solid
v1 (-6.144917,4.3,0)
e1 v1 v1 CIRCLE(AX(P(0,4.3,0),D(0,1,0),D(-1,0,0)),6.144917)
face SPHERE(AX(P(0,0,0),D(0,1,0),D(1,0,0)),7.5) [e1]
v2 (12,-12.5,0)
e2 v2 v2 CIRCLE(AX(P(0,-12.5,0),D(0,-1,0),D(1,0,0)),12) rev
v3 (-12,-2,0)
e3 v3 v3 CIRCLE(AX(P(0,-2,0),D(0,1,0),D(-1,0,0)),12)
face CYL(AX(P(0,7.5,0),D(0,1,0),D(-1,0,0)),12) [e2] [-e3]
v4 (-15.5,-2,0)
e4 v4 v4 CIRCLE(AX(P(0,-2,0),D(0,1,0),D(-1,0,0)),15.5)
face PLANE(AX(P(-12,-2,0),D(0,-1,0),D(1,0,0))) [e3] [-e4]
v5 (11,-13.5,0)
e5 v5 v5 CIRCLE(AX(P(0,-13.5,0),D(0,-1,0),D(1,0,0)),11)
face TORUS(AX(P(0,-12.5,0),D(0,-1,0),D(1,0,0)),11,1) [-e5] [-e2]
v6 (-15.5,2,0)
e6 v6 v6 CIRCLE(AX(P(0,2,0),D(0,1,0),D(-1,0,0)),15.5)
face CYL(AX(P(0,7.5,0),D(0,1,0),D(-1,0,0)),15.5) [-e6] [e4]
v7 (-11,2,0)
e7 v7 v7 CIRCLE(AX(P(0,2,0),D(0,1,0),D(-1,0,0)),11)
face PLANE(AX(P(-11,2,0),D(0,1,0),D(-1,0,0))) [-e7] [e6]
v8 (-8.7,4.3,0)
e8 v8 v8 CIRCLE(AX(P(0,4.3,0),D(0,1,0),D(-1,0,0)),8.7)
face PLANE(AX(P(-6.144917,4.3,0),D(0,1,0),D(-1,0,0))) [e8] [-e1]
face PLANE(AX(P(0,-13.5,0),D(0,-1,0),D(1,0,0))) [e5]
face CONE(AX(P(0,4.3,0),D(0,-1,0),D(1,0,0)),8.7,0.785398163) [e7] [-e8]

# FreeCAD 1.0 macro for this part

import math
import FreeCAD as App
import Part
import Sketcher

V = App.Vector
Q = App.Units.Quantity


def edges_at(feature, points):
    """Names of the edges that pass closest to the given points."""
    edges = feature.Shape.Edges
    near = lambda p: min(range(len(edges)), key=lambda i: edges[i].distToShape(Part.Vertex(*p))[0])
    return sorted({f"Edge{near(p) + 1}" for p in points})

doc = App.newDocument("Part")
body = doc.addObject("PartDesign::Body", "Body")

# Sketch on XY plane
sketch1 = body.newObject("Sketcher::SketchObject", "Sketch")
sketch1.AttachmentSupport = (doc.getObject("XY_Plane"), [""])
sketch1.MapMode = "FlatFace"
sketch1.addGeometry(Part.LineSegment(V(-15.5, -2, 0), V(-12, -2, 0)), False)
sketch1.addGeometry(Part.LineSegment(V(-12, -2, 0), V(-12, -13.5, 0)), False)
sketch1.addGeometry(Part.LineSegment(V(-12, -13.5, 0), V(0, -13.5, 0)), False)
sketch1.addGeometry(Part.LineSegment(V(0, -13.5, 0), V(0, 7.5, 0)), False)
sketch1.addGeometry(Part.ArcOfCircle(Part.Circle(V(0, 0, 0), V(0, 0, 1), 7.5), math.radians(90), math.radians(145)), False)
sketch1.addGeometry(Part.LineSegment(V(-6.1, 4.3, 0), V(-8.7, 4.3, 0)), False)
sketch1.addGeometry(Part.LineSegment(V(-8.7, 4.3, 0), V(-11, 2, 0)), False)
sketch1.addGeometry(Part.LineSegment(V(-11, 2, 0), V(-15.5, 2, 0)), False)
sketch1.addGeometry(Part.LineSegment(V(-15.5, 2, 0), V(-15.5, -2, 0)), False)
sketch1.addConstraint(Sketcher.Constraint("Coincident", 0, 2, 1, 1))
sketch1.addConstraint(Sketcher.Constraint("Coincident", 1, 2, 2, 1))
sketch1.addConstraint(Sketcher.Constraint("Coincident", 2, 2, 3, 1))
sketch1.addConstraint(Sketcher.Constraint("Coincident", 3, 2, 4, 1))
sketch1.addConstraint(Sketcher.Constraint("Coincident", 4, 2, 5, 1))
sketch1.addConstraint(Sketcher.Constraint("Coincident", 5, 2, 6, 1))
sketch1.addConstraint(Sketcher.Constraint("Coincident", 6, 2, 7, 1))
sketch1.addConstraint(Sketcher.Constraint("Coincident", 7, 2, 8, 1))
sketch1.addConstraint(Sketcher.Constraint("Coincident", 8, 2, 0, 1))
sketch1.addConstraint(Sketcher.Constraint("Horizontal", 0))
sketch1.addConstraint(Sketcher.Constraint("Vertical", 1))
sketch1.addConstraint(Sketcher.Constraint("Horizontal", 2))
sketch1.addConstraint(Sketcher.Constraint("Vertical", 3))
sketch1.addConstraint(Sketcher.Constraint("Horizontal", 5))
sketch1.addConstraint(Sketcher.Constraint("Horizontal", 7))
sketch1.addConstraint(Sketcher.Constraint("Vertical", 8))
sketch1.addConstraint(Sketcher.Constraint("Coincident", 4, 3, -1, 1))
sketch1.addConstraint(Sketcher.Constraint("PointOnObject", 2, 2, -2))
sketch1.addConstraint(Sketcher.Constraint("Radius", 4, 7.5))
sketch1.addConstraint(Sketcher.Constraint("DistanceX", 2, 1, 2, 2, 12.0))
sketch1.addConstraint(Sketcher.Constraint("DistanceY", 3, 1, 3, 2, 21.0))
sketch1.addConstraint(Sketcher.Constraint("DistanceY", 8, 2, 8, 1, 4.0))
sketch1.addConstraint(Sketcher.Constraint("Angle", 6, Q("-135 deg")))
sketch1.addConstraint(Sketcher.Constraint("DistanceX", 0, 1, 0, 2, 3.5))
sketch1.addConstraint(Sketcher.Constraint("DistanceX", 7, 2, 7, 1, 4.5))
sketch1.addConstraint(Sketcher.Constraint("DistanceY", 1, 2, 1, 1, 11.5))
sketch1.addConstraint(Sketcher.Constraint("DistanceY", -1, 1, 4, 2, 4.3))
revolution = body.newObject("PartDesign::Revolution", "Revolution")
revolution.Profile = sketch1
revolution.ReferenceAxis = (sketch1, ["V_Axis"])
revolution.Angle = 360
doc.recompute()

fillet = body.newObject("PartDesign::Fillet", "Fillet")
fillet.Base = (revolution, edges_at(revolution, [(12, -13.5, 0)]))
fillet.Radius = 1

doc.recompute()
